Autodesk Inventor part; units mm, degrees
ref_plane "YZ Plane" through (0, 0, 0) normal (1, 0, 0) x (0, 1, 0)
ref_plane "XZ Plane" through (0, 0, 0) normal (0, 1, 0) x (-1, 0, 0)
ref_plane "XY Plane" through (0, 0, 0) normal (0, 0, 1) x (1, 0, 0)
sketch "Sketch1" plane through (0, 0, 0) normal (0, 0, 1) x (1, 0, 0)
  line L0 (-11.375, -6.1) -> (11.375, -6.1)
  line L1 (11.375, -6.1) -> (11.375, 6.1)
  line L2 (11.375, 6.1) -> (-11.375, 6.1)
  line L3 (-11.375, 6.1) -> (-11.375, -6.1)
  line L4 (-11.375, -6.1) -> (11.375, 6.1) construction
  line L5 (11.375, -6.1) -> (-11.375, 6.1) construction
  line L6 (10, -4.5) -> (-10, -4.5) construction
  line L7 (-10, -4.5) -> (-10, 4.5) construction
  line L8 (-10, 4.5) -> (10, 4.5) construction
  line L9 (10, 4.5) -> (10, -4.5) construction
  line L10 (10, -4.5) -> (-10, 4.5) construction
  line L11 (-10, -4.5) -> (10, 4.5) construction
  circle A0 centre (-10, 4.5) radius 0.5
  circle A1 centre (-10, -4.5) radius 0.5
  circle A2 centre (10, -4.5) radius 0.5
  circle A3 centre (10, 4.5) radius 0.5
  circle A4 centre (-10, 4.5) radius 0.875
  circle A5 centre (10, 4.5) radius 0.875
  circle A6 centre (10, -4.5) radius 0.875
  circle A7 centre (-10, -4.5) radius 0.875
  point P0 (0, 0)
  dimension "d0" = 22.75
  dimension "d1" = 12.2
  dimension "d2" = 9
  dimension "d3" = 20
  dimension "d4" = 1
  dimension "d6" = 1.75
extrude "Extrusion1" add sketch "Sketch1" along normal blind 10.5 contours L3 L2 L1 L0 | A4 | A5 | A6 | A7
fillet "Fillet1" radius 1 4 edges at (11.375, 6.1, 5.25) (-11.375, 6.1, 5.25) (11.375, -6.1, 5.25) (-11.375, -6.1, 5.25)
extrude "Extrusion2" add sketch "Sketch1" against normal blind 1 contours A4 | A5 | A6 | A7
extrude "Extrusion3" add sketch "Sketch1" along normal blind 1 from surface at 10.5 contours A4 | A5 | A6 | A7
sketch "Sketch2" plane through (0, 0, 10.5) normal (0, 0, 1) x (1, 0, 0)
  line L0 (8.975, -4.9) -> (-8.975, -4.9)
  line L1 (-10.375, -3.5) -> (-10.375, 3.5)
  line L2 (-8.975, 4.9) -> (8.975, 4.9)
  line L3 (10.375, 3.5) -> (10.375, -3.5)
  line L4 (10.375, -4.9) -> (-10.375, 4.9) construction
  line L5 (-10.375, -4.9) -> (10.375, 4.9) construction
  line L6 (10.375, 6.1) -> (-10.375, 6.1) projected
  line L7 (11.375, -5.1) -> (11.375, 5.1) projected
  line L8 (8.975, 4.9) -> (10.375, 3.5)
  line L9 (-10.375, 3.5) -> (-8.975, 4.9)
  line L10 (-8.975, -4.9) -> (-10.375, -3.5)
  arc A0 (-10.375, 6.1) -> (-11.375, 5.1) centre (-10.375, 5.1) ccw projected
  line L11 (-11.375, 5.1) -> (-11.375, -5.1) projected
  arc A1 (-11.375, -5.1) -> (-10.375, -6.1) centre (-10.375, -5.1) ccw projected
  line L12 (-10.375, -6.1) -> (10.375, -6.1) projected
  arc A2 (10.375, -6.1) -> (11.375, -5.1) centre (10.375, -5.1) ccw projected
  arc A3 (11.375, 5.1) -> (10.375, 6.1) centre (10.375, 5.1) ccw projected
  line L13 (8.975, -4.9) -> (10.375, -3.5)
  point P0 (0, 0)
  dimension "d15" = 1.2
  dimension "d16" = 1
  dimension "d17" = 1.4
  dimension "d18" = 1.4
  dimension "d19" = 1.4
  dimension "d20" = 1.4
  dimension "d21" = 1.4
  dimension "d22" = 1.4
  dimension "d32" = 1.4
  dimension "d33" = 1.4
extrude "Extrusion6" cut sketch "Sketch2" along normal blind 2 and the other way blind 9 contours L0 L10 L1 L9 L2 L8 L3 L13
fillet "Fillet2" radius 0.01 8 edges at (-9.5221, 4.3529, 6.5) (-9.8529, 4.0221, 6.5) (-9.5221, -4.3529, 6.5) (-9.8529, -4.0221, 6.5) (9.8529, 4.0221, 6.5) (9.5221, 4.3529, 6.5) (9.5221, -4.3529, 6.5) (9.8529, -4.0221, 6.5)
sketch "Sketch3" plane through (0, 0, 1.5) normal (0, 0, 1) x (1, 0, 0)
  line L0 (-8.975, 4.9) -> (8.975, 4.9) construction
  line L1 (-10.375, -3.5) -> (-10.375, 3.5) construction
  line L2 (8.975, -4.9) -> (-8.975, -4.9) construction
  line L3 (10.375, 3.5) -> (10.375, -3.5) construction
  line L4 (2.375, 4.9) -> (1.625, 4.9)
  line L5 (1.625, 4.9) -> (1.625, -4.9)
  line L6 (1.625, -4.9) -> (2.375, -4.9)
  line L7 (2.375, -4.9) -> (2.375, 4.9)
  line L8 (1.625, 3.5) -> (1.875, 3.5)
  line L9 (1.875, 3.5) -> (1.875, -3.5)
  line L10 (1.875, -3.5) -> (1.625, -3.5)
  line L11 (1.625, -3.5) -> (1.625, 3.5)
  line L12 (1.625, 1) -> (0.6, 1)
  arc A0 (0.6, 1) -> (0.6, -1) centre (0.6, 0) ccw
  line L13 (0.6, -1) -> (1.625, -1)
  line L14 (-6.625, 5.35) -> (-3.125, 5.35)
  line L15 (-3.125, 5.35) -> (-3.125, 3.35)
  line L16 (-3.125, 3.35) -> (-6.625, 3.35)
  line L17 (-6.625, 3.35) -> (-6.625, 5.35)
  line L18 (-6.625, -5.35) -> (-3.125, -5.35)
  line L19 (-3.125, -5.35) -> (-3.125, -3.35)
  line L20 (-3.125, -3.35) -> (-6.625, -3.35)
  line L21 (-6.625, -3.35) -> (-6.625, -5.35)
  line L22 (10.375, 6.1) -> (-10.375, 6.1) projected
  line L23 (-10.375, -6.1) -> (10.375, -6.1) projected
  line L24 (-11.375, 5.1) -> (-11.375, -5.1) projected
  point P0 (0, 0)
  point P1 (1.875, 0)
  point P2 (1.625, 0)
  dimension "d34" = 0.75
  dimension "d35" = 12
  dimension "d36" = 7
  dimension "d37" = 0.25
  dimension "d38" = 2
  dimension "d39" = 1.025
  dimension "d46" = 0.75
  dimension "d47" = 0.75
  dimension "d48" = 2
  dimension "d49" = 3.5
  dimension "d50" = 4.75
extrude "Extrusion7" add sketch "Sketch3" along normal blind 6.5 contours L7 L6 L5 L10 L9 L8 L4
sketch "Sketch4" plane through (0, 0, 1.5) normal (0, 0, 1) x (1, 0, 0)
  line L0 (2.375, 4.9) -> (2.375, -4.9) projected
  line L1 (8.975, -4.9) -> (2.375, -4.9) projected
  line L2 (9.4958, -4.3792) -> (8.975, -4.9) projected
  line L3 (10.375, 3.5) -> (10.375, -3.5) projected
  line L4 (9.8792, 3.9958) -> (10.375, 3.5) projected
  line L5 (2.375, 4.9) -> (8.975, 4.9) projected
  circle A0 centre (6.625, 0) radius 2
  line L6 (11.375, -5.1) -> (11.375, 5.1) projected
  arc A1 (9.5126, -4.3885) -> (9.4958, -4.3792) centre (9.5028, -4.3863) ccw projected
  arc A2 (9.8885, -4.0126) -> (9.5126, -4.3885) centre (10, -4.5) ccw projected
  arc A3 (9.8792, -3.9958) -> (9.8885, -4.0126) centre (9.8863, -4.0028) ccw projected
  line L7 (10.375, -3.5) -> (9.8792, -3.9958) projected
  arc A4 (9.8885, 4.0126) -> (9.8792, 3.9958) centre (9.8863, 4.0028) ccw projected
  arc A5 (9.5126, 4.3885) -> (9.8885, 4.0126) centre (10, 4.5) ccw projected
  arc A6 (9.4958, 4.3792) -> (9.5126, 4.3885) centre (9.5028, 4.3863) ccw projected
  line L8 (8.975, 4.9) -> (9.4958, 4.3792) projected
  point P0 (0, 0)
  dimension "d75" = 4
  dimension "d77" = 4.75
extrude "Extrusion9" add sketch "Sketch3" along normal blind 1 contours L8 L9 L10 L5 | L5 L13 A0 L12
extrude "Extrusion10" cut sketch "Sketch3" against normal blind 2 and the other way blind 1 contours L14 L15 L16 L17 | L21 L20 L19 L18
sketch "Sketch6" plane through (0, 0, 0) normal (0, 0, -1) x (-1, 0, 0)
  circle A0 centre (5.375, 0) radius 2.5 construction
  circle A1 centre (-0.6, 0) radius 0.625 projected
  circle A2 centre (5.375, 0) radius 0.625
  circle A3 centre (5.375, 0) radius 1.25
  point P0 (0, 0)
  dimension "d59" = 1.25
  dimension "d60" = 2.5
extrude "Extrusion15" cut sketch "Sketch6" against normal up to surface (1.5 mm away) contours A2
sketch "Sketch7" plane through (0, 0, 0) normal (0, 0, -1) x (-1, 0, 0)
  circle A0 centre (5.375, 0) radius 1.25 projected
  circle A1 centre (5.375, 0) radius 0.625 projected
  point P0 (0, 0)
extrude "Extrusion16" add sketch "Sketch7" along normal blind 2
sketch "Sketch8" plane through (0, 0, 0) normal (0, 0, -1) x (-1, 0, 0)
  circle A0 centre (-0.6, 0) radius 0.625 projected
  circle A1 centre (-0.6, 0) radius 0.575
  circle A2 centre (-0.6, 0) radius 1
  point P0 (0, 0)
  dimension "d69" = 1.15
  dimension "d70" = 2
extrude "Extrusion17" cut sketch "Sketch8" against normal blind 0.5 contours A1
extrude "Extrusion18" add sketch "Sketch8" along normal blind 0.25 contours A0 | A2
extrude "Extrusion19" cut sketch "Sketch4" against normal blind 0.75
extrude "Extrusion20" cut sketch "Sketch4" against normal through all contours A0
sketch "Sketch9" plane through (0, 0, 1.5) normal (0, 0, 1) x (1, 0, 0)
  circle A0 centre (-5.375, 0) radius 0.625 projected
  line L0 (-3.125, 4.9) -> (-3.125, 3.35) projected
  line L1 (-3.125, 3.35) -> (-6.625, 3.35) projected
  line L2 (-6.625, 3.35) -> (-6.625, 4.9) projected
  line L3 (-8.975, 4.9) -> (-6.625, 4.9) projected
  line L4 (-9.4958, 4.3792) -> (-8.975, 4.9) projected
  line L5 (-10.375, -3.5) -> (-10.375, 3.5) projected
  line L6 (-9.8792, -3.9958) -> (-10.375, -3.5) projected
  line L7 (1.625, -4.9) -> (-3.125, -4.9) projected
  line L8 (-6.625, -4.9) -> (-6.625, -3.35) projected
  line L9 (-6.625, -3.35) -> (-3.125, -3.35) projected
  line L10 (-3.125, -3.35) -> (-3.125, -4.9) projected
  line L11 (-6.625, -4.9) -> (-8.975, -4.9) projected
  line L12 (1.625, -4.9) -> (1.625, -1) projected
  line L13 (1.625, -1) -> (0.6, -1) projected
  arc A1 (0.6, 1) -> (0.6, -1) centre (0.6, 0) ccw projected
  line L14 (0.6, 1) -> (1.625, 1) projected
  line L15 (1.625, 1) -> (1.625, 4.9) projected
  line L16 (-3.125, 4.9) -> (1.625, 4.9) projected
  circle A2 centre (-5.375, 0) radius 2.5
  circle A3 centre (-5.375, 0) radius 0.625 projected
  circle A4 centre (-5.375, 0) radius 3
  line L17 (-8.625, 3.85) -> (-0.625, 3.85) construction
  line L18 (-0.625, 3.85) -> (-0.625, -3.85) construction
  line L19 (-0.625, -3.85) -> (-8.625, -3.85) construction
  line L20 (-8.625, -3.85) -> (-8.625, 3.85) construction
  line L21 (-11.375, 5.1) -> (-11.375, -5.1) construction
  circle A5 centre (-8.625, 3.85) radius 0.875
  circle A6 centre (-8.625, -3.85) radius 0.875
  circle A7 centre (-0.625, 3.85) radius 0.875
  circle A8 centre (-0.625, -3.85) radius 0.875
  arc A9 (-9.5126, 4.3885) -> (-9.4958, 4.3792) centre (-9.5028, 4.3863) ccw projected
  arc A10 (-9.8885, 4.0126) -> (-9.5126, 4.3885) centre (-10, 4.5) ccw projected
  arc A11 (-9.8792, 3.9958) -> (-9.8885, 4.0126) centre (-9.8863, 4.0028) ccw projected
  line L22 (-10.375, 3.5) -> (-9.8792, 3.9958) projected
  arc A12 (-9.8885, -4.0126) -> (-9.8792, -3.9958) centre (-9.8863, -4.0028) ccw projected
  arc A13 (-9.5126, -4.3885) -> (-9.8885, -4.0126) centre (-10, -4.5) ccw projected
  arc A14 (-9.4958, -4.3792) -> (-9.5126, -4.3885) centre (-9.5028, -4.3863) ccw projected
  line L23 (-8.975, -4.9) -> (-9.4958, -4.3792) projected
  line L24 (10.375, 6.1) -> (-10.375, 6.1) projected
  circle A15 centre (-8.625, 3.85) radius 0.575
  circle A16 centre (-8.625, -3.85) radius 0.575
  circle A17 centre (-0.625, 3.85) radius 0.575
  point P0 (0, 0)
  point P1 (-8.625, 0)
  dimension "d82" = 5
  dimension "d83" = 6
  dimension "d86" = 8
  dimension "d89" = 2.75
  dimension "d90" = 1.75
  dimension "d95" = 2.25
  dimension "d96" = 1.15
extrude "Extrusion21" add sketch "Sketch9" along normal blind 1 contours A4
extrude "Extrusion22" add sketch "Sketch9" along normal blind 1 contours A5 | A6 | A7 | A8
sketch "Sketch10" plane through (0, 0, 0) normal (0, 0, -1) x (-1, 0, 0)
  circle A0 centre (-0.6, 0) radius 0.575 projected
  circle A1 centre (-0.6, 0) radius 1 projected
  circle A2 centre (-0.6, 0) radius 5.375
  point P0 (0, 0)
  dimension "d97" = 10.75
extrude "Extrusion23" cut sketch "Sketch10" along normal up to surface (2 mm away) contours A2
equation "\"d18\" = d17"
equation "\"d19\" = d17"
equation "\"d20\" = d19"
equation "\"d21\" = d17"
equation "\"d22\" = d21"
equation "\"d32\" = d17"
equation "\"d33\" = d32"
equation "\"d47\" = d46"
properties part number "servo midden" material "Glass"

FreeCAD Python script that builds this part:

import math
import FreeCAD as App
import Part
import Sketcher
Q = App.Units.Quantity


def edges_at(feature, points):
    """Names of the edges that pass closest to the given points."""
    edges = feature.Shape.Edges
    near = lambda p: min(range(len(edges)), key=lambda i: edges[i].distToShape(Part.Vertex(*p))[0])
    return sorted({f"Edge{near(p) + 1}" for p in points})

doc = App.newDocument("Part")
body = doc.addObject("PartDesign::Body", "Body")

# Sketch on XY plane
sketch1 = body.newObject("Sketcher::SketchObject", "Sketch")
sketch1.AttachmentSupport = (doc.getObject("XY_Plane"), [""])
sketch1.MapMode = "FlatFace"
sketch1.addGeometry([
    Part.LineSegment(App.Vector(-11.4, 6.1, 0), App.Vector(-11.4, -6.1, 0)),  # 0
    Part.LineSegment(App.Vector(-11.4, -6.1, 0), App.Vector(11.4, -6.1, 0)),  # 1
    Part.LineSegment(App.Vector(11.4, -6.1, 0), App.Vector(11.4, 6.1, 0)),  # 2
    Part.LineSegment(App.Vector(11.4, 6.1, 0), App.Vector(-11.4, 6.1, 0)),  # 3
    Part.Circle(App.Vector(-10, -4.5, 0), App.Vector(0, 0, 1), 0.5),  # 4
    Part.Circle(App.Vector(10, -4.5, 0), App.Vector(0, 0, 1), 0.5),  # 5
    Part.Circle(App.Vector(-10, 4.5, 0), App.Vector(0, 0, 1), 0.5),  # 6
    Part.Circle(App.Vector(10, 4.5, 0), App.Vector(0, 0, 1), 0.5),  # 7
], False)
sketch1.addConstraint([
    Sketcher.Constraint("Coincident", 0, 2, 1, 1),
    Sketcher.Constraint("Coincident", 1, 2, 2, 1),
    Sketcher.Constraint("Coincident", 2, 2, 3, 1),
    Sketcher.Constraint("Coincident", 3, 2, 0, 1),
    Sketcher.Constraint("Vertical", 0),
    Sketcher.Constraint("Horizontal", 1),
    Sketcher.Constraint("Vertical", 2),
    Sketcher.Constraint("Horizontal", 3),
    Sketcher.Constraint("Equal", 4, 5),
    Sketcher.Constraint("Equal", 5, 6),
    Sketcher.Constraint("Equal", 6, 7),
    Sketcher.Constraint("Symmetric", 5, 3, 6, 3, -1, 1),
    Sketcher.Constraint("Symmetric", 4, 3, 7, 3, -1, 1),
    Sketcher.Constraint("Symmetric", 0, 2, 2, 2, -1, 1),
    Sketcher.Constraint("Symmetric", 4, 3, 5, 3, -2),
    Sketcher.Constraint("Diameter", 4, Q("1 mm")),
    Sketcher.Constraint("DistanceY", 0, 2, 0, 1, Q("12.2 mm")),
    Sketcher.Constraint("DistanceX", 4, 3, 5, 3, Q("20 mm")),
    Sketcher.Constraint("DistanceY", 4, 3, 6, 3, Q("9 mm")),
    Sketcher.Constraint("DistanceX", 1, 1, 1, 2, Q("22.75 mm")),
])
pad1 = body.newObject("PartDesign::Pad", "Pad")
pad1.Profile = sketch1
pad1.Length = 10.5
doc.recompute()

fillet = body.newObject("PartDesign::Fillet", "Fillet")
fillet.Base = (pad1, edges_at(pad1, [
    (11.375, 6.1, 5.25),
    (-11.375, 6.1, 5.25),
    (11.375, -6.1, 5.25),
    (-11.375, -6.1, 5.25),
]))
fillet.Radius = 1

# Sketch on XY plane
sketch2 = body.newObject("Sketcher::SketchObject", "Sketch001")
sketch2.AttachmentSupport = (doc.getObject("XY_Plane"), [""])
sketch2.MapMode = "FlatFace"
sketch2.addGeometry([
    Part.Circle(App.Vector(-10, 4.5, 0), App.Vector(0, 0, 1), 0.9),  # 0
    Part.Circle(App.Vector(-10, 4.5, 0), App.Vector(0, 0, 1), 0.5),  # 1
    Part.Circle(App.Vector(10, 4.5, 0), App.Vector(0, 0, 1), 0.9),  # 2
    Part.Circle(App.Vector(10, 4.5, 0), App.Vector(0, 0, 1), 0.5),  # 3
    Part.Circle(App.Vector(10, -4.5, 0), App.Vector(0, 0, 1), 0.9),  # 4
    Part.Circle(App.Vector(10, -4.5, 0), App.Vector(0, 0, 1), 0.5),  # 5
    Part.Circle(App.Vector(-10, -4.5, 0), App.Vector(0, 0, 1), 0.9),  # 6
    Part.Circle(App.Vector(-10, -4.5, 0), App.Vector(0, 0, 1), 0.5),  # 7
], False)
sketch2.addConstraint([
    Sketcher.Constraint("Coincident", 1, 3, 0, 3),
    Sketcher.Constraint("Coincident", 3, 3, 2, 3),
    Sketcher.Constraint("Coincident", 5, 3, 4, 3),
    Sketcher.Constraint("Coincident", 7, 3, 6, 3),
    Sketcher.Constraint("Equal", 0, 2),
    Sketcher.Constraint("Equal", 1, 3),
    Sketcher.Constraint("Equal", 2, 4),
    Sketcher.Constraint("Equal", 3, 5),
    Sketcher.Constraint("Equal", 4, 6),
    Sketcher.Constraint("Equal", 5, 7),
    Sketcher.Constraint("Symmetric", 0, 3, 4, 3, -1, 1),
    Sketcher.Constraint("Symmetric", 2, 3, 6, 3, -1, 1),
    Sketcher.Constraint("Symmetric", 0, 3, 2, 3, -2),
    Sketcher.Constraint("Diameter", 1, Q("1 mm")),
    Sketcher.Constraint("Diameter", 0, Q("1.75 mm")),
    Sketcher.Constraint("DistanceX", 0, 3, 2, 3, Q("20 mm")),
    Sketcher.Constraint("DistanceY", 4, 3, 2, 3, Q("9 mm")),
])
pad2 = body.newObject("PartDesign::Pad", "Pad001")
pad2.Profile = sketch2
pad2.Length = 1
pad2.Reversed = True

# Sketch on XY plane
sketch3 = body.newObject("Sketcher::SketchObject", "Sketch002")
sketch3.AttachmentSupport = (doc.getObject("XY_Plane"), [""])
sketch3.MapMode = "FlatFace"
sketch3.AttachmentOffset = App.Placement(App.Vector(0, 0, 10.5), App.Rotation())
sketch3.addGeometry([
    Part.Circle(App.Vector(-10, 4.5, 0), App.Vector(0, 0, 1), 0.9),  # 0
    Part.Circle(App.Vector(-10, 4.5, 0), App.Vector(0, 0, 1), 0.5),  # 1
    Part.Circle(App.Vector(10, 4.5, 0), App.Vector(0, 0, 1), 0.9),  # 2
    Part.Circle(App.Vector(10, 4.5, 0), App.Vector(0, 0, 1), 0.5),  # 3
    Part.Circle(App.Vector(10, -4.5, 0), App.Vector(0, 0, 1), 0.9),  # 4
    Part.Circle(App.Vector(10, -4.5, 0), App.Vector(0, 0, 1), 0.5),  # 5
    Part.Circle(App.Vector(-10, -4.5, 0), App.Vector(0, 0, 1), 0.9),  # 6
    Part.Circle(App.Vector(-10, -4.5, 0), App.Vector(0, 0, 1), 0.5),  # 7
], False)
sketch3.addConstraint([
    Sketcher.Constraint("Coincident", 1, 3, 0, 3),
    Sketcher.Constraint("Coincident", 3, 3, 2, 3),
    Sketcher.Constraint("Coincident", 5, 3, 4, 3),
    Sketcher.Constraint("Coincident", 7, 3, 6, 3),
    Sketcher.Constraint("Equal", 0, 2),
    Sketcher.Constraint("Equal", 1, 3),
    Sketcher.Constraint("Equal", 2, 4),
    Sketcher.Constraint("Equal", 3, 5),
    Sketcher.Constraint("Equal", 4, 6),
    Sketcher.Constraint("Equal", 5, 7),
    Sketcher.Constraint("Symmetric", 0, 3, 4, 3, -1, 1),
    Sketcher.Constraint("Symmetric", 2, 3, 6, 3, -1, 1),
    Sketcher.Constraint("Symmetric", 0, 3, 2, 3, -2),
    Sketcher.Constraint("Diameter", 1, Q("1 mm")),
    Sketcher.Constraint("Diameter", 0, Q("1.75 mm")),
    Sketcher.Constraint("DistanceX", 0, 3, 2, 3, Q("20 mm")),
    Sketcher.Constraint("DistanceY", 4, 3, 2, 3, Q("9 mm")),
])
pad3 = body.newObject("PartDesign::Pad", "Pad002")
pad3.Profile = sketch3
pad3.Length = 1

# Sketch on XY plane
sketch4 = body.newObject("Sketcher::SketchObject", "Sketch003")
sketch4.AttachmentSupport = (doc.getObject("XY_Plane"), [""])
sketch4.MapMode = "FlatFace"
sketch4.AttachmentOffset = App.Placement(App.Vector(0, 0, 10.5), App.Rotation())
sketch4.addGeometry([
    Part.LineSegment(App.Vector(-9, -4.9, 0), App.Vector(9, -4.9, 0)),  # 0
    Part.LineSegment(App.Vector(9, -4.9, 0), App.Vector(10.4, -3.5, 0)),  # 1
    Part.LineSegment(App.Vector(10.4, -3.5, 0), App.Vector(10.4, 3.5, 0)),  # 2
    Part.LineSegment(App.Vector(10.4, 3.5, 0), App.Vector(9, 4.9, 0)),  # 3
    Part.LineSegment(App.Vector(9, 4.9, 0), App.Vector(-9, 4.9, 0)),  # 4
    Part.LineSegment(App.Vector(-9, 4.9, 0), App.Vector(-10.4, 3.5, 0)),  # 5
    Part.LineSegment(App.Vector(-10.4, 3.5, 0), App.Vector(-10.4, -3.5, 0)),  # 6
    Part.LineSegment(App.Vector(-10.4, -3.5, 0), App.Vector(-9, -4.9, 0)),  # 7
], False)
sketch4.addConstraint([
    Sketcher.Constraint("Coincident", 0, 2, 1, 1),
    Sketcher.Constraint("Coincident", 1, 2, 2, 1),
    Sketcher.Constraint("Coincident", 2, 2, 3, 1),
    Sketcher.Constraint("Coincident", 3, 2, 4, 1),
    Sketcher.Constraint("Coincident", 4, 2, 5, 1),
    Sketcher.Constraint("Coincident", 5, 2, 6, 1),
    Sketcher.Constraint("Coincident", 6, 2, 7, 1),
    Sketcher.Constraint("Coincident", 7, 2, 0, 1),
    Sketcher.Constraint("Horizontal", 0),
    Sketcher.Constraint("Vertical", 2),
    Sketcher.Constraint("Horizontal", 4),
    Sketcher.Constraint("Vertical", 6),
    Sketcher.Constraint("Symmetric", 0, 2, 4, 2, -1, 1),
    Sketcher.Constraint("Symmetric", 1, 2, 5, 2, -1, 1),
    Sketcher.Constraint("Perpendicular", 1, 3),
    Sketcher.Constraint("Perpendicular", 5, 7),
    Sketcher.Constraint("Horizontal", 2, 2, 5, 2),
    Sketcher.Constraint("Horizontal", 1, 2, 6, 2),
    Sketcher.Constraint("Vertical", 0, 2, 3, 2),
    Sketcher.Constraint("DistanceX", 0, 2, 1, 2, Q("1.4 mm")),
    Sketcher.Constraint("DistanceY", 2, 1, 2, 2, Q("7 mm")),
    Sketcher.Constraint("DistanceX", 0, 1, 0, 2, Q("17.95 mm")),
])
pocket1 = body.newObject("PartDesign::Pocket", "Pocket")
pocket1.Profile = sketch4
pocket1.Type = "TwoLengths"
pocket1.Length = 2
pocket1.Length2 = 9
pocket1.Reversed = True
doc.recompute()

fillet2 = body.newObject("PartDesign::Fillet", "Fillet001")
fillet2.Base = (pocket1, edges_at(pocket1, [
    (-9.522, 4.353, 6.5),
    (-9.853, 4.022, 6.5),
    (-9.522, -4.353, 6.5),
    (-9.853, -4.022, 6.5),
    (9.853, 4.022, 6.5),
    (9.522, 4.353, 6.5),
    (9.522, -4.353, 6.5),
    (9.853, -4.022, 6.5),
]))
fillet2.Radius = 0.01

# Sketch on XY plane
sketch5 = body.newObject("Sketcher::SketchObject", "Sketch004")
sketch5.AttachmentSupport = (doc.getObject("XY_Plane"), [""])
sketch5.MapMode = "FlatFace"
sketch5.AttachmentOffset = App.Placement(App.Vector(0, 0, 1.5), App.Rotation())
sketch5.addGeometry([
    Part.LineSegment(App.Vector(2.38, -4.9, 0), App.Vector(2.38, 4.9, 0)),  # 0
    Part.LineSegment(App.Vector(2.38, 4.9, 0), App.Vector(1.62, 4.9, 0)),  # 1
    Part.LineSegment(App.Vector(1.62, 4.9, 0), App.Vector(1.62, 3.5, 0)),  # 2
    Part.LineSegment(App.Vector(1.62, 3.5, 0), App.Vector(1.88, 3.5, 0)),  # 3
    Part.LineSegment(App.Vector(1.88, 3.5, 0), App.Vector(1.88, -3.5, 0)),  # 4
    Part.LineSegment(App.Vector(1.88, -3.5, 0), App.Vector(1.62, -3.5, 0)),  # 5
    Part.LineSegment(App.Vector(1.62, -3.5, 0), App.Vector(1.62, -4.9, 0)),  # 6
    Part.LineSegment(App.Vector(1.62, -4.9, 0), App.Vector(2.38, -4.9, 0)),  # 7
], False)
sketch5.addConstraint([
    Sketcher.Constraint("Coincident", 0, 2, 1, 1),
    Sketcher.Constraint("Coincident", 1, 2, 2, 1),
    Sketcher.Constraint("Coincident", 2, 2, 3, 1),
    Sketcher.Constraint("Coincident", 3, 2, 4, 1),
    Sketcher.Constraint("Coincident", 4, 2, 5, 1),
    Sketcher.Constraint("Coincident", 5, 2, 6, 1),
    Sketcher.Constraint("Coincident", 6, 2, 7, 1),
    Sketcher.Constraint("Coincident", 7, 2, 0, 1),
    Sketcher.Constraint("Vertical", 0),
    Sketcher.Constraint("Horizontal", 1),
    Sketcher.Constraint("Vertical", 2),
    Sketcher.Constraint("Horizontal", 3),
    Sketcher.Constraint("Vertical", 4),
    Sketcher.Constraint("Horizontal", 5),
    Sketcher.Constraint("Vertical", 6),
    Sketcher.Constraint("Horizontal", 7),
    Sketcher.Constraint("Symmetric", 2, 2, 5, 2, -1),
    Sketcher.Constraint("Equal", 2, 6),
    Sketcher.Constraint("DistanceY", 4, 2, 4, 1, Q("7 mm")),
    Sketcher.Constraint("DistanceX", 1, 2, 1, 1, Q("0.75 mm")),
    Sketcher.Constraint("DistanceX", 3, 1, 3, 2, Q("0.25 mm")),
    Sketcher.Constraint("DistanceY", 0, 1, 0, 2, Q("9.8 mm")),
    Sketcher.Constraint("DistanceX", -1, 1, 0, 2, Q("2.375 mm")),
])
pad4 = body.newObject("PartDesign::Pad", "Pad003")
pad4.Profile = sketch5
pad4.Length = 6.5

# Sketch on XY plane
sketch6 = body.newObject("Sketcher::SketchObject", "Sketch005")
sketch6.AttachmentSupport = (doc.getObject("XY_Plane"), [""])
sketch6.MapMode = "FlatFace"
sketch6.AttachmentOffset = App.Placement(App.Vector(0, 0, 1.5), App.Rotation())
sketch6.addGeometry([
    Part.LineSegment(App.Vector(1.88, 3.5, 0), App.Vector(1.62, 3.5, 0)),  # 0
    Part.LineSegment(App.Vector(1.62, 3.5, 0), App.Vector(1.62, 1, 0)),  # 1
    Part.LineSegment(App.Vector(1.62, 1, 0), App.Vector(0.6, 1, 0)),  # 2
    Part.ArcOfCircle(Part.Circle(App.Vector(0.6, 0, 0), App.Vector(0, 0, 1), 1), math.radians(90), math.radians(270)),  # 3
    Part.LineSegment(App.Vector(0.6, -1, 0), App.Vector(1.62, -1, 0)),  # 4
    Part.LineSegment(App.Vector(1.62, -1, 0), App.Vector(1.62, -3.5, 0)),  # 5
    Part.LineSegment(App.Vector(1.62, -3.5, 0), App.Vector(1.88, -3.5, 0)),  # 6
    Part.LineSegment(App.Vector(1.88, -3.5, 0), App.Vector(1.88, 3.5, 0)),  # 7
], False)
sketch6.addConstraint([
    Sketcher.Constraint("Coincident", 0, 2, 1, 1),
    Sketcher.Constraint("Coincident", 1, 2, 2, 1),
    Sketcher.Constraint("Tangent", 2, 2, 3, 1),
    Sketcher.Constraint("Tangent", 3, 2, 4, 1),
    Sketcher.Constraint("Coincident", 4, 2, 5, 1),
    Sketcher.Constraint("Coincident", 5, 2, 6, 1),
    Sketcher.Constraint("Coincident", 6, 2, 7, 1),
    Sketcher.Constraint("Coincident", 7, 2, 0, 1),
    Sketcher.Constraint("Horizontal", 0),
    Sketcher.Constraint("Vertical", 1),
    Sketcher.Constraint("Horizontal", 2),
    Sketcher.Constraint("Horizontal", 4),
    Sketcher.Constraint("Vertical", 5),
    Sketcher.Constraint("Horizontal", 6),
    Sketcher.Constraint("Vertical", 7),
    Sketcher.Constraint("Symmetric", 1, 2, 4, 2, -1),
    Sketcher.Constraint("Equal", 1, 5),
    Sketcher.Constraint("Radius", 3, Q("1 mm")),
    Sketcher.Constraint("DistanceY", 7, 1, 7, 2, Q("7 mm")),
    Sketcher.Constraint("DistanceX", 0, 2, 0, 1, Q("0.25 mm")),
    Sketcher.Constraint("DistanceX", 2, 2, 2, 1, Q("1.025 mm")),
    Sketcher.Constraint("DistanceX", -1, 1, 3, 3, Q("0.6 mm")),
])
pad5 = body.newObject("PartDesign::Pad", "Pad004")
pad5.Profile = sketch6
pad5.Length = 1

# Sketch on XY plane
sketch7 = body.newObject("Sketcher::SketchObject", "Sketch006")
sketch7.AttachmentSupport = (doc.getObject("XY_Plane"), [""])
sketch7.MapMode = "FlatFace"
sketch7.AttachmentOffset = App.Placement(App.Vector(0, 0, 1.5), App.Rotation())
sketch7.addGeometry([
    Part.LineSegment(App.Vector(-3.1, 5.3, 0), App.Vector(-6.6, 5.3, 0)),  # 0
    Part.LineSegment(App.Vector(-6.6, 5.3, 0), App.Vector(-6.6, 3.4, 0)),  # 1
    Part.LineSegment(App.Vector(-6.6, 3.4, 0), App.Vector(-3.1, 3.4, 0)),  # 2
    Part.LineSegment(App.Vector(-3.1, 3.4, 0), App.Vector(-3.1, 5.3, 0)),  # 3
    Part.LineSegment(App.Vector(-6.6, -3.4, 0), App.Vector(-6.6, -5.3, 0)),  # 4
    Part.LineSegment(App.Vector(-6.6, -5.3, 0), App.Vector(-3.1, -5.3, 0)),  # 5
    Part.LineSegment(App.Vector(-3.1, -5.3, 0), App.Vector(-3.1, -3.4, 0)),  # 6
    Part.LineSegment(App.Vector(-3.1, -3.4, 0), App.Vector(-6.6, -3.4, 0)),  # 7
], False)
sketch7.addConstraint([
    Sketcher.Constraint("Coincident", 0, 2, 1, 1),
    Sketcher.Constraint("Coincident", 1, 2, 2, 1),
    Sketcher.Constraint("Coincident", 2, 2, 3, 1),
    Sketcher.Constraint("Coincident", 3, 2, 0, 1),
    Sketcher.Constraint("Coincident", 4, 2, 5, 1),
    Sketcher.Constraint("Coincident", 5, 2, 6, 1),
    Sketcher.Constraint("Coincident", 6, 2, 7, 1),
    Sketcher.Constraint("Coincident", 7, 2, 4, 1),
    Sketcher.Constraint("Horizontal", 0),
    Sketcher.Constraint("Vertical", 1),
    Sketcher.Constraint("Horizontal", 2),
    Sketcher.Constraint("Vertical", 3),
    Sketcher.Constraint("Vertical", 4),
    Sketcher.Constraint("Horizontal", 5),
    Sketcher.Constraint("Vertical", 6),
    Sketcher.Constraint("Horizontal", 7),
    Sketcher.Constraint("Symmetric", 0, 2, 4, 2, -1),
    Sketcher.Constraint("Symmetric", 2, 2, 6, 2, -1),
    Sketcher.Constraint("DistanceY", 1, 2, 1, 1, Q("2 mm")),
    Sketcher.Constraint("DistanceX", 0, 2, 0, 1, Q("3.5 mm")),
    Sketcher.Constraint("DistanceY", 4, 2, 1, 2, Q("8.7 mm")),
    Sketcher.Constraint("DistanceX", 0, 2, -1, 1, Q("6.625 mm")),
])
pocket2 = body.newObject("PartDesign::Pocket", "Pocket001")
pocket2.Profile = sketch7
pocket2.Type = "TwoLengths"
pocket2.Length = 2
pocket2.Length2 = 1

# Sketch on XY plane
sketch8 = body.newObject("Sketcher::SketchObject", "Sketch007")
sketch8.AttachmentSupport = (doc.getObject("XY_Plane"), [""])
sketch8.MapMode = "FlatFace"
sketch8.addGeometry(Part.Circle(App.Vector(-5.4, 0, 0), App.Vector(0, 0, 1), 0.6), False)
sketch8.addConstraint([
    Sketcher.Constraint("PointOnObject", 0, 3, -1),
    Sketcher.Constraint("Diameter", 0, Q("1.25 mm")),
    Sketcher.Constraint("DistanceX", 0, 3, -1, 1, Q("5.375 mm")),
])
pocket3 = body.newObject("PartDesign::Pocket", "Pocket002")
pocket3.Profile = sketch8
pocket3.Length = 1.5
pocket3.Reversed = True

# Sketch on XY plane
sketch9 = body.newObject("Sketcher::SketchObject", "Sketch008")
sketch9.AttachmentSupport = (doc.getObject("XY_Plane"), [""])
sketch9.MapMode = "FlatFace"
sketch9.addGeometry([
    Part.Circle(App.Vector(-5.4, 0, 0), App.Vector(0, 0, 1), 1.2),
    Part.Circle(App.Vector(-5.4, 0, 0), App.Vector(0, 0, 1), 0.6),
], False)
sketch9.addConstraint([
    Sketcher.Constraint("Coincident", 1, 3, 0, 3),
    Sketcher.Constraint("PointOnObject", 0, 3, -1),
    Sketcher.Constraint("Diameter", 0, Q("2.5 mm")),
    Sketcher.Constraint("Diameter", 1, Q("1.25 mm")),
    Sketcher.Constraint("DistanceX", 0, 3, -1, 1, Q("5.375 mm")),
])
pad6 = body.newObject("PartDesign::Pad", "Pad005")
pad6.Profile = sketch9
pad6.Length = 2
pad6.Reversed = True

# Sketch on XY plane
sketch10 = body.newObject("Sketcher::SketchObject", "Sketch009")
sketch10.AttachmentSupport = (doc.getObject("XY_Plane"), [""])
sketch10.MapMode = "FlatFace"
sketch10.addGeometry(Part.Circle(App.Vector(0.6, 0, 0), App.Vector(0, 0, 1), 0.6), False)
sketch10.addConstraint([
    Sketcher.Constraint("PointOnObject", 0, 3, -1),
    Sketcher.Constraint("Diameter", 0, Q("1.15 mm")),
    Sketcher.Constraint("DistanceX", -1, 1, 0, 3, Q("0.6 mm")),
])
pocket4 = body.newObject("PartDesign::Pocket", "Pocket003")
pocket4.Profile = sketch10
pocket4.Length = 0.5
pocket4.Reversed = True

# Sketch on XY plane
sketch11 = body.newObject("Sketcher::SketchObject", "Sketch010")
sketch11.AttachmentSupport = (doc.getObject("XY_Plane"), [""])
sketch11.MapMode = "FlatFace"
sketch11.addGeometry([
    Part.Circle(App.Vector(0.6, 0, 0), App.Vector(0, 0, 1), 1),
    Part.Circle(App.Vector(0.6, 0, 0), App.Vector(0, 0, 1), 0.6),
], False)
sketch11.addConstraint([
    Sketcher.Constraint("Coincident", 1, 3, 0, 3),
    Sketcher.Constraint("PointOnObject", 0, 3, -1),
    Sketcher.Constraint("Diameter", 0, Q("2 mm")),
    Sketcher.Constraint("Diameter", 1, Q("1.15 mm")),
    Sketcher.Constraint("DistanceX", -1, 1, 0, 3, Q("0.6 mm")),
])
pad7 = body.newObject("PartDesign::Pad", "Pad006")
pad7.Profile = sketch11
pad7.Length = 0.25
pad7.Reversed = True

# Sketch on XY plane
sketch12 = body.newObject("Sketcher::SketchObject", "Sketch011")
sketch12.AttachmentSupport = (doc.getObject("XY_Plane"), [""])
sketch12.MapMode = "FlatFace"
sketch12.AttachmentOffset = App.Placement(App.Vector(0, 0, 1.5), App.Rotation())
sketch12.addGeometry([
    Part.LineSegment(App.Vector(8.975, 4.9, 0), App.Vector(2.375, 4.9, 0)),  # 0
    Part.LineSegment(App.Vector(2.375, 4.9, 0), App.Vector(2.375, -4.9, 0)),  # 1
    Part.LineSegment(App.Vector(2.375, -4.9, 0), App.Vector(8.975, -4.9, 0)),  # 2
    Part.LineSegment(App.Vector(8.975, -4.9, 0), App.Vector(9.496, -4.379, 0)),  # 3
    Part.ArcOfCircle(Part.Circle(App.Vector(9.503, -4.386, 0), App.Vector(0, 0, 1), 0.01), math.radians(-13), math.radians(135)),  # 4
    Part.ArcOfCircle(Part.Circle(App.Vector(10, -4.5, 0), App.Vector(0, 0, 1), 0.5), math.radians(103), math.radians(167)),  # 5
    Part.ArcOfCircle(Part.Circle(App.Vector(9.886, -4.003, 0), App.Vector(0, 0, 1), 0.01), math.radians(135), math.radians(283)),  # 6
    Part.LineSegment(App.Vector(9.879, -3.996, 0), App.Vector(10.375, -3.5, 0)),  # 7
    Part.LineSegment(App.Vector(10.375, -3.5, 0), App.Vector(10.375, 3.5, 0)),  # 8
    Part.LineSegment(App.Vector(10.375, 3.5, 0), App.Vector(9.879, 3.996, 0)),  # 9
    Part.ArcOfCircle(Part.Circle(App.Vector(9.886, 4.003, 0), App.Vector(0, 0, 1), 0.01), math.radians(77), math.radians(225)),  # 10
    Part.ArcOfCircle(Part.Circle(App.Vector(10, 4.5, 0), App.Vector(0, 0, 1), 0.5), math.radians(-167), math.radians(-103)),  # 11
    Part.ArcOfCircle(Part.Circle(App.Vector(9.503, 4.386, 0), App.Vector(0, 0, 1), 0.01), math.radians(-135), math.radians(13)),  # 12
    Part.LineSegment(App.Vector(9.496, 4.379, 0), App.Vector(8.975, 4.9, 0)),  # 13
    Part.Circle(App.Vector(6.625, 0, 0), App.Vector(0, 0, 1), 2),  # 14
], False)
sketch12.addConstraint([
    Sketcher.Constraint("Coincident", 0, 2, 1, 1),
    Sketcher.Constraint("Coincident", 1, 2, 2, 1),
    Sketcher.Constraint("Coincident", 2, 2, 3, 1),
    Sketcher.Constraint("Coincident", 3, 2, 4, 2),
    Sketcher.Constraint("Coincident", 4, 1, 5, 2),
    Sketcher.Constraint("Coincident", 5, 1, 6, 2),
    Sketcher.Constraint("Coincident", 6, 1, 7, 1),
    Sketcher.Constraint("Coincident", 7, 2, 8, 1),
    Sketcher.Constraint("Coincident", 8, 2, 9, 1),
    Sketcher.Constraint("Coincident", 9, 2, 10, 2),
    Sketcher.Constraint("Coincident", 10, 1, 11, 2),
    Sketcher.Constraint("Coincident", 11, 1, 12, 2),
    Sketcher.Constraint("Coincident", 12, 1, 13, 1),
    Sketcher.Constraint("Coincident", 13, 2, 0, 1),
    Sketcher.Constraint("Horizontal", 0),
    Sketcher.Constraint("Vertical", 1),
    Sketcher.Constraint("Horizontal", 2),
    Sketcher.Constraint("Vertical", 8),
    Sketcher.Constraint("Equal", 4, 6),
    Sketcher.Constraint("Equal", 6, 10),
    Sketcher.Constraint("Equal", 5, 11),
    Sketcher.Constraint("Equal", 10, 12),
    Sketcher.Constraint("Symmetric", 6, 3, 10, 3, -1),
    Sketcher.Constraint("Symmetric", 4, 3, 12, 3, -1),
    Sketcher.Constraint("Symmetric", 2, 2, 13, 2, -1),
    Sketcher.Constraint("PointOnObject", 14, 3, -1),
    Sketcher.Constraint("Parallel", 3, 7),
    Sketcher.Constraint("Perpendicular", 7, 9),
    Sketcher.Constraint("Parallel", 9, 13),
    Sketcher.Constraint("Vertical", 6, 1, 9, 2),
    Sketcher.Constraint("Vertical", 5, 1, 10, 1),
    Sketcher.Constraint("Vertical", 3, 2, 12, 1),
    Sketcher.Constraint("Diameter", 14, Q("4 mm")),
    Sketcher.Constraint("Radius", 5, Q("0.5 mm")),
    Sketcher.Constraint("DistanceY", 8, 1, 8, 2, Q("7 mm")),
    Sketcher.Constraint("Radius", 4, Q("0.01 mm")),
    Sketcher.Constraint("DistanceX", 0, 2, 0, 1, Q("6.6 mm")),
    Sketcher.Constraint("DistanceY", 1, 2, 1, 1, Q("9.8 mm")),
    Sketcher.Constraint("DistanceX", -1, 1, 5, 3, Q("10 mm")),
    Sketcher.Constraint("DistanceY", 5, 3, 11, 3, Q("9 mm")),
    Sketcher.Constraint("DistanceX", 0, 2, 14, 3, Q("4.25 mm")),
    Sketcher.Constraint("DistanceX", 14, 3, 8, 2, Q("3.75 mm")),
    Sketcher.Constraint("DistanceX", -1, 1, 14, 3, Q("6.625 mm")),
    Sketcher.Constraint("DistanceX", 3, 2, 4, 3, Q("0.007 mm")),
    Sketcher.Constraint("DistanceX", 4, 1, 5, 1, Q("0.376 mm")),
    Sketcher.Constraint("DistanceY", 4, 1, 5, 1, Q("0.376 mm")),
    Sketcher.Constraint("DistanceX", 6, 1, 6, 3, Q("0.007 mm")),
    Sketcher.Constraint("DistanceY", 10, 1, 11, 1, Q("0.376 mm")),
])
pocket5 = body.newObject("PartDesign::Pocket", "Pocket004")
pocket5.Profile = sketch12
pocket5.Length = 0.75

# Sketch on XY plane
sketch13 = body.newObject("Sketcher::SketchObject", "Sketch012")
sketch13.AttachmentSupport = (doc.getObject("XY_Plane"), [""])
sketch13.MapMode = "FlatFace"
sketch13.AttachmentOffset = App.Placement(App.Vector(0, 0, 1.5), App.Rotation())
sketch13.addGeometry(Part.Circle(App.Vector(6.6, 0, 0), App.Vector(0, 0, 1), 2), False)
sketch13.addConstraint([
    Sketcher.Constraint("PointOnObject", 0, 3, -1),
    Sketcher.Constraint("Diameter", 0, Q("4 mm")),
    Sketcher.Constraint("DistanceX", -1, 1, 0, 3, Q("6.625 mm")),
])
pocket6 = body.newObject("PartDesign::Pocket", "Pocket005")
pocket6.Profile = sketch13
pocket6.Type = "ThroughAll"

# Sketch on XY plane
sketch14 = body.newObject("Sketcher::SketchObject", "Sketch013")
sketch14.AttachmentSupport = (doc.getObject("XY_Plane"), [""])
sketch14.MapMode = "FlatFace"
sketch14.AttachmentOffset = App.Placement(App.Vector(0, 0, 1.5), App.Rotation())
sketch14.addGeometry([
    Part.Circle(App.Vector(-5.4, 0, 0), App.Vector(0, 0, 1), 3),
    Part.Circle(App.Vector(-5.4, 0, 0), App.Vector(0, 0, 1), 2.5),
], False)
sketch14.addConstraint([
    Sketcher.Constraint("Coincident", 1, 3, 0, 3),
    Sketcher.Constraint("PointOnObject", 0, 3, -1),
    Sketcher.Constraint("Diameter", 0, Q("6 mm")),
    Sketcher.Constraint("Diameter", 1, Q("5 mm")),
    Sketcher.Constraint("DistanceX", 0, 3, -1, 1, Q("5.375 mm")),
])
pad8 = body.newObject("PartDesign::Pad", "Pad007")
pad8.Profile = sketch14
pad8.Length = 1

# Sketch on XY plane
sketch15 = body.newObject("Sketcher::SketchObject", "Sketch014")
sketch15.AttachmentSupport = (doc.getObject("XY_Plane"), [""])
sketch15.MapMode = "FlatFace"
sketch15.AttachmentOffset = App.Placement(App.Vector(0, 0, 1.5), App.Rotation())
sketch15.addGeometry([
    Part.Circle(App.Vector(-8.6, 3.9, 0), App.Vector(0, 0, 1), 0.9),  # 0
    Part.Circle(App.Vector(-8.6, 3.9, 0), App.Vector(0, 0, 1), 0.6),  # 1
    Part.Circle(App.Vector(-8.6, -3.9, 0), App.Vector(0, 0, 1), 0.9),  # 2
    Part.Circle(App.Vector(-8.6, -3.9, 0), App.Vector(0, 0, 1), 0.6),  # 3
    Part.Circle(App.Vector(-0.6, 3.9, 0), App.Vector(0, 0, 1), 0.9),  # 4
    Part.Circle(App.Vector(-0.6, 3.9, 0), App.Vector(0, 0, 1), 0.6),  # 5
    Part.Circle(App.Vector(-0.6, -3.9, 0), App.Vector(0, 0, 1), 0.9),  # 6
], False)
sketch15.addConstraint([
    Sketcher.Constraint("Coincident", 1, 3, 0, 3),
    Sketcher.Constraint("Coincident", 3, 3, 2, 3),
    Sketcher.Constraint("Coincident", 5, 3, 4, 3),
    Sketcher.Constraint("Equal", 0, 2),
    Sketcher.Constraint("Equal", 1, 3),
    Sketcher.Constraint("Equal", 2, 4),
    Sketcher.Constraint("Equal", 3, 5),
    Sketcher.Constraint("Equal", 4, 6),
    Sketcher.Constraint("Symmetric", 0, 3, 2, 3, -1),
    Sketcher.Constraint("Symmetric", 4, 3, 6, 3, -1),
    Sketcher.Constraint("Horizontal", 1, 3, 4, 3),
    Sketcher.Constraint("Diameter", 0, Q("1.75 mm")),
    Sketcher.Constraint("Diameter", 1, Q("1.15 mm")),
    Sketcher.Constraint("DistanceX", 0, 3, 4, 3, Q("8 mm")),
    Sketcher.Constraint("DistanceY", 2, 3, 0, 3, Q("7.7 mm")),
    Sketcher.Constraint("DistanceX", 0, 3, -1, 1, Q("8.625 mm")),
])
pad9 = body.newObject("PartDesign::Pad", "Pad008")
pad9.Profile = sketch15
pad9.Length = 1

# Sketch on XY plane
sketch16 = body.newObject("Sketcher::SketchObject", "Sketch015")
sketch16.AttachmentSupport = (doc.getObject("XY_Plane"), [""])
sketch16.MapMode = "FlatFace"
sketch16.addGeometry([
    Part.Circle(App.Vector(0.6, 0, 0), App.Vector(0, 0, 1), 5.4),
    Part.Circle(App.Vector(0.6, 0, 0), App.Vector(0, 0, 1), 1),
], False)
sketch16.addConstraint([
    Sketcher.Constraint("Coincident", 1, 3, 0, 3),
    Sketcher.Constraint("PointOnObject", 0, 3, -1),
    Sketcher.Constraint("Diameter", 0, Q("10.75 mm")),
    Sketcher.Constraint("Diameter", 1, Q("2 mm")),
    Sketcher.Constraint("DistanceX", -1, 1, 0, 3, Q("0.6 mm")),
])
pocket7 = body.newObject("PartDesign::Pocket", "Pocket006")
pocket7.Profile = sketch16
pocket7.Length = 2

doc.recompute()
